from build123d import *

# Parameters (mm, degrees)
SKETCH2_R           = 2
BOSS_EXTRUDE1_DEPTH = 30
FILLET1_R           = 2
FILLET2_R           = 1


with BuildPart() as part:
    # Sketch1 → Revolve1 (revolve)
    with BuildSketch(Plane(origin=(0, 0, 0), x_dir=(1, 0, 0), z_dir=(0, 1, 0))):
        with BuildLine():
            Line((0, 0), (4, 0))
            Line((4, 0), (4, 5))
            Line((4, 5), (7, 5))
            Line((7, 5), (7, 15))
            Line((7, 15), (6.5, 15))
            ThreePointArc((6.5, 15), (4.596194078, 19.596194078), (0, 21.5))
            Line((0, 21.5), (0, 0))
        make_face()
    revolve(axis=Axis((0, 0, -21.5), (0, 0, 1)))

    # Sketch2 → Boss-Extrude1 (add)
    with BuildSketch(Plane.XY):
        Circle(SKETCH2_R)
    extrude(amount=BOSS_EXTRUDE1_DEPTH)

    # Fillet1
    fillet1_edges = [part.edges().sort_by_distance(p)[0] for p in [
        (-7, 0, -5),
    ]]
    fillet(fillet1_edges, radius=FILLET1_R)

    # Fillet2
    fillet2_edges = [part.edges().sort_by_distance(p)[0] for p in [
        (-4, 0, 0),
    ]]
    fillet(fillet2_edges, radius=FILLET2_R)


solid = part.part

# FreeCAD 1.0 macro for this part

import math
import FreeCAD as App
import Part
import Sketcher

V = App.Vector


def edges_at(feature, points):
    """Names of the edges that pass closest to the given points."""
    edges = feature.Shape.Edges
    near = lambda p: min(range(len(edges)), key=lambda i: edges[i].distToShape(Part.Vertex(*p))[0])
    return sorted({f"Edge{near(p) + 1}" for p in points})

doc = App.newDocument("Part")
body = doc.addObject("PartDesign::Body", "Body")

# Sketch on XZ plane
sketch1 = body.newObject("Sketcher::SketchObject", "Sketch")
sketch1.AttachmentSupport = (doc.getObject("XZ_Plane"), [""])
sketch1.MapMode = "FlatFace"
sketch1.addGeometry(Part.LineSegment(V(0, 0, 0), V(4, 0, 0)), False)
sketch1.addGeometry(Part.LineSegment(V(4, 0, 0), V(4, -5, 0)), False)
sketch1.addGeometry(Part.LineSegment(V(4, -5, 0), V(7, -5, 0)), False)
sketch1.addGeometry(Part.LineSegment(V(7, -5, 0), V(7, -15, 0)), False)
sketch1.addGeometry(Part.LineSegment(V(7, -15, 0), V(6.5, -15, 0)), False)
sketch1.addGeometry(Part.ArcOfCircle(Part.Circle(V(0, -15, 0), V(0, 0, 1), 6.5), math.radians(-90), math.radians(0)), False)
sketch1.addGeometry(Part.LineSegment(V(0, -21.5, 0), V(0, 0, 0)), False)
sketch1.addConstraint(Sketcher.Constraint("Coincident", 0, 2, 1, 1))
sketch1.addConstraint(Sketcher.Constraint("Coincident", 1, 2, 2, 1))
sketch1.addConstraint(Sketcher.Constraint("Coincident", 2, 2, 3, 1))
sketch1.addConstraint(Sketcher.Constraint("Coincident", 3, 2, 4, 1))
sketch1.addConstraint(Sketcher.Constraint("Coincident", 4, 2, 5, 2))
sketch1.addConstraint(Sketcher.Constraint("Coincident", 5, 1, 6, 1))
sketch1.addConstraint(Sketcher.Constraint("Coincident", 6, 2, 0, 1))
sketch1.addConstraint(Sketcher.Constraint("Horizontal", 0))
sketch1.addConstraint(Sketcher.Constraint("Vertical", 1))
sketch1.addConstraint(Sketcher.Constraint("Horizontal", 2))
sketch1.addConstraint(Sketcher.Constraint("Vertical", 3))
sketch1.addConstraint(Sketcher.Constraint("Horizontal", 4))
sketch1.addConstraint(Sketcher.Constraint("Vertical", 6))
sketch1.addConstraint(Sketcher.Constraint("Coincident", 6, 2, -1, 1))
sketch1.addConstraint(Sketcher.Constraint("PointOnObject", 5, 3, -2))
sketch1.addConstraint(Sketcher.Constraint("Horizontal", 5, 3, 3, 2))
sketch1.addConstraint(Sketcher.Constraint("Radius", 5, 6.5))
sketch1.addConstraint(Sketcher.Constraint("DistanceX", 0, 1, 0, 2, 4.0))
sketch1.addConstraint(Sketcher.Constraint("DistanceX", 2, 1, 2, 2, 3.0))
sketch1.addConstraint(Sketcher.Constraint("DistanceY", 1, 2, 1, 1, 5.0))
sketch1.addConstraint(Sketcher.Constraint("DistanceY", 3, 2, 3, 1, 10.0))
revolution = body.newObject("PartDesign::Revolution", "Revolution")
revolution.Profile = sketch1
revolution.ReferenceAxis = (sketch1, ["V_Axis"])
revolution.Angle = 360

# Sketch on XY plane
sketch2 = body.newObject("Sketcher::SketchObject", "Sketch001")
sketch2.AttachmentSupport = (doc.getObject("XY_Plane"), [""])
sketch2.MapMode = "FlatFace"
sketch2.addGeometry(Part.Circle(V(0, 0, 0), V(0, 0, 1), 2), False)
sketch2.addConstraint(Sketcher.Constraint("Coincident", 0, 3, -1, 1))
sketch2.addConstraint(Sketcher.Constraint("Diameter", 0, 4.0))
pad1 = body.newObject("PartDesign::Pad", "Pad")
pad1.Profile = sketch2
pad1.Length = 30
doc.recompute()

fillet = body.newObject("PartDesign::Fillet", "Fillet")
fillet.Base = (pad1, edges_at(pad1, [(-7, 0, -5)]))
fillet.Radius = 2
doc.recompute()

fillet2 = body.newObject("PartDesign::Fillet", "Fillet001")
fillet2.Base = (fillet, edges_at(fillet, [(-4, 0, 0)]))
fillet2.Radius = 1

doc.recompute()
